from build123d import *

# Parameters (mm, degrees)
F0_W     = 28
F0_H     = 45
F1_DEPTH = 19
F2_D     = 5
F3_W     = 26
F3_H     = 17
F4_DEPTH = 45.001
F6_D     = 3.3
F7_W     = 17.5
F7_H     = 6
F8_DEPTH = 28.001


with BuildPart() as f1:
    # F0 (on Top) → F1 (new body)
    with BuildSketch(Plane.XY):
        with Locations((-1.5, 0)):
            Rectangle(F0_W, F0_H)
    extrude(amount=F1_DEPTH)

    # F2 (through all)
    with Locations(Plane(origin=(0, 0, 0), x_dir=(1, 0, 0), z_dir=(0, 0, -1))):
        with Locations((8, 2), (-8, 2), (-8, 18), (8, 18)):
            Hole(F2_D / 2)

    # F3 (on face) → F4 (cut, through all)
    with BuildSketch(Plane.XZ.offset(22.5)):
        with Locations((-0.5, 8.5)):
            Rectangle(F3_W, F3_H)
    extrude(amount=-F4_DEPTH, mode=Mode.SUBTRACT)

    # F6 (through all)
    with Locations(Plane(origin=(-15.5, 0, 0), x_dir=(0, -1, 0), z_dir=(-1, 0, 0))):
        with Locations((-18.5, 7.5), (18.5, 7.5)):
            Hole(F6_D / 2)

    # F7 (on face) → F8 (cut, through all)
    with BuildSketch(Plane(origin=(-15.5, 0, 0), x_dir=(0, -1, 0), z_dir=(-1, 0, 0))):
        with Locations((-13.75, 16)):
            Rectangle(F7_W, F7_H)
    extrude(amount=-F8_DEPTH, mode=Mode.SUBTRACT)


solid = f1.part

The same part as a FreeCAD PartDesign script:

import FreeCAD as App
import Part
import Sketcher
Q = App.Units.Quantity

doc = App.newDocument("Part")
body = doc.addObject("PartDesign::Body", "Body")

# Sketch on XY plane
sketch1 = body.newObject("Sketcher::SketchObject", "Sketch")
sketch1.AttachmentSupport = (doc.getObject("XY_Plane"), [""])
sketch1.MapMode = "FlatFace"
sketch1.addGeometry(Part.LineSegment(App.Vector(-16, 22, 0), App.Vector(-16, -22, 0)), False)
sketch1.addGeometry(Part.LineSegment(App.Vector(-16, -22, 0), App.Vector(12, -22, 0)), False)
sketch1.addGeometry(Part.LineSegment(App.Vector(12, -22, 0), App.Vector(12, 22, 0)), False)
sketch1.addGeometry(Part.LineSegment(App.Vector(12, 22, 0), App.Vector(-16, 22, 0)), False)
sketch1.addConstraint(Sketcher.Constraint("Coincident", 0, 2, 1, 1))
sketch1.addConstraint(Sketcher.Constraint("Coincident", 1, 2, 2, 1))
sketch1.addConstraint(Sketcher.Constraint("Coincident", 2, 2, 3, 1))
sketch1.addConstraint(Sketcher.Constraint("Coincident", 3, 2, 0, 1))
sketch1.addConstraint(Sketcher.Constraint("Vertical", 0))
sketch1.addConstraint(Sketcher.Constraint("Horizontal", 1))
sketch1.addConstraint(Sketcher.Constraint("Vertical", 2))
sketch1.addConstraint(Sketcher.Constraint("Horizontal", 3))
sketch1.addConstraint(Sketcher.Constraint("DistanceX", 1, 1, 1, 2, Q("28 mm")))
sketch1.addConstraint(Sketcher.Constraint("DistanceY", 0, 2, 0, 1, Q("45 mm")))
sketch1.addConstraint(Sketcher.Constraint("DistanceX", 0, 2, -1, 1, Q("15.5 mm")))
sketch1.addConstraint(Sketcher.Constraint("DistanceY", 0, 2, -1, 1, Q("22.5 mm")))
pad1 = body.newObject("PartDesign::Pad", "Pad")
pad1.Profile = sketch1
pad1.Length = 19

# Sketch on XY plane
sketch2 = body.newObject("Sketcher::SketchObject", "Sketch001")
sketch2.AttachmentSupport = (doc.getObject("XY_Plane"), [""])
sketch2.MapMode = "FlatFace"
sketch2.addGeometry(Part.Circle(App.Vector(8, -2, 0), App.Vector(0, 0, 1), 2.5), False)
sketch2.addGeometry(Part.Circle(App.Vector(-8, -2, 0), App.Vector(0, 0, 1), 2.5), False)
sketch2.addGeometry(Part.Circle(App.Vector(-8, -18, 0), App.Vector(0, 0, 1), 2.5), False)
sketch2.addGeometry(Part.Circle(App.Vector(8, -18, 0), App.Vector(0, 0, 1), 2.5), False)
sketch2.addConstraint(Sketcher.Constraint("Equal", 0, 1))
sketch2.addConstraint(Sketcher.Constraint("Equal", 1, 2))
sketch2.addConstraint(Sketcher.Constraint("Equal", 2, 3))
sketch2.addConstraint(Sketcher.Constraint("Symmetric", 0, 3, 1, 3, -2))
sketch2.addConstraint(Sketcher.Constraint("Symmetric", 2, 3, 3, 3, -2))
sketch2.addConstraint(Sketcher.Constraint("Vertical", 1, 3, 2, 3))
sketch2.addConstraint(Sketcher.Constraint("Diameter", 0, Q("5 mm")))
sketch2.addConstraint(Sketcher.Constraint("DistanceX", -1, 1, 0, 3, Q("8 mm")))
sketch2.addConstraint(Sketcher.Constraint("DistanceY", 0, 3, -1, 1, Q("2 mm")))
sketch2.addConstraint(Sketcher.Constraint("DistanceY", 2, 3, -1, 1, Q("18 mm")))
doc.recompute()
hole = body.newObject("PartDesign::Hole", "Hole")
hole.Profile = sketch2
hole.ThreadType = "None"
hole.Diameter = 5
hole.DepthType = "ThroughAll"
hole.Reversed = True

# Sketch on XZ plane
sketch3 = body.newObject("Sketcher::SketchObject", "Sketch002")
sketch3.AttachmentSupport = (doc.getObject("XZ_Plane"), [""])
sketch3.MapMode = "FlatFace"
sketch3.AttachmentOffset = App.Placement(App.Vector(0, 0, 22.5), App.Rotation())
sketch3.addGeometry(Part.LineSegment(App.Vector(-14, 17, 0), App.Vector(-14, 0, 0)), False)
sketch3.addGeometry(Part.LineSegment(App.Vector(-14, 0, 0), App.Vector(12, 0, 0)), False)
sketch3.addGeometry(Part.LineSegment(App.Vector(12, 0, 0), App.Vector(12, 17, 0)), False)
sketch3.addGeometry(Part.LineSegment(App.Vector(12, 17, 0), App.Vector(-14, 17, 0)), False)
sketch3.addConstraint(Sketcher.Constraint("Coincident", 0, 2, 1, 1))
sketch3.addConstraint(Sketcher.Constraint("Coincident", 1, 2, 2, 1))
sketch3.addConstraint(Sketcher.Constraint("Coincident", 2, 2, 3, 1))
sketch3.addConstraint(Sketcher.Constraint("Coincident", 3, 2, 0, 1))
sketch3.addConstraint(Sketcher.Constraint("Vertical", 0))
sketch3.addConstraint(Sketcher.Constraint("Horizontal", 1))
sketch3.addConstraint(Sketcher.Constraint("Vertical", 2))
sketch3.addConstraint(Sketcher.Constraint("Horizontal", 3))
sketch3.addConstraint(Sketcher.Constraint("PointOnObject", 0, 2, -1))
sketch3.addConstraint(Sketcher.Constraint("DistanceX", 1, 1, 1, 2, Q("26 mm")))
sketch3.addConstraint(Sketcher.Constraint("DistanceY", 0, 2, 0, 1, Q("17 mm")))
sketch3.addConstraint(Sketcher.Constraint("DistanceX", 0, 2, -1, 1, Q("13.5 mm")))
pocket1 = body.newObject("PartDesign::Pocket", "Pocket")
pocket1.Profile = sketch3
pocket1.Type = "ThroughAll"

# Sketch on YZ plane
sketch4 = body.newObject("Sketcher::SketchObject", "Sketch003")
sketch4.AttachmentSupport = (doc.getObject("YZ_Plane"), [""])
sketch4.MapMode = "FlatFace"
sketch4.AttachmentOffset = App.Placement(App.Vector(0, 0, -15.5), App.Rotation())
sketch4.addGeometry(Part.Circle(App.Vector(18.5, 7.5, 0), App.Vector(0, 0, 1), 1.6), False)
sketch4.addGeometry(Part.Circle(App.Vector(-18.5, 7.5, 0), App.Vector(0, 0, 1), 1.6), False)
sketch4.addConstraint(Sketcher.Constraint("Equal", 0, 1))
sketch4.addConstraint(Sketcher.Constraint("Symmetric", 0, 3, 1, 3, -2))
sketch4.addConstraint(Sketcher.Constraint("Diameter", 0, Q("3.3 mm")))
sketch4.addConstraint(Sketcher.Constraint("DistanceX", 1, 3, 0, 3, Q("37 mm")))
sketch4.addConstraint(Sketcher.Constraint("DistanceY", -1, 1, 0, 3, Q("7.5 mm")))
doc.recompute()
hole2 = body.newObject("PartDesign::Hole", "Hole001")
hole2.Profile = sketch4
hole2.ThreadType = "None"
hole2.Diameter = 3.3
hole2.DepthType = "ThroughAll"
hole2.Reversed = True

# Sketch on YZ plane
sketch5 = body.newObject("Sketcher::SketchObject", "Sketch004")
sketch5.AttachmentSupport = (doc.getObject("YZ_Plane"), [""])
sketch5.MapMode = "FlatFace"
sketch5.AttachmentOffset = App.Placement(App.Vector(0, 0, -15.5), App.Rotation())
sketch5.addGeometry(Part.LineSegment(App.Vector(22, 19, 0), App.Vector(22, 13, 0)), False)
sketch5.addGeometry(Part.LineSegment(App.Vector(22, 13, 0), App.Vector(5, 13, 0)), False)
sketch5.addGeometry(Part.LineSegment(App.Vector(5, 13, 0), App.Vector(5, 19, 0)), False)
sketch5.addGeometry(Part.LineSegment(App.Vector(5, 19, 0), App.Vector(22, 19, 0)), False)
sketch5.addConstraint(Sketcher.Constraint("Coincident", 0, 2, 1, 1))
sketch5.addConstraint(Sketcher.Constraint("Coincident", 1, 2, 2, 1))
sketch5.addConstraint(Sketcher.Constraint("Coincident", 2, 2, 3, 1))
sketch5.addConstraint(Sketcher.Constraint("Coincident", 3, 2, 0, 1))
sketch5.addConstraint(Sketcher.Constraint("Vertical", 0))
sketch5.addConstraint(Sketcher.Constraint("Horizontal", 1))
sketch5.addConstraint(Sketcher.Constraint("Vertical", 2))
sketch5.addConstraint(Sketcher.Constraint("Horizontal", 3))
sketch5.addConstraint(Sketcher.Constraint("DistanceY", 0, 2, 0, 1, Q("6 mm")))
sketch5.addConstraint(Sketcher.Constraint("DistanceX", 1, 2, 1, 1, Q("17.5 mm")))
sketch5.addConstraint(Sketcher.Constraint("DistanceY", -1, 1, 0, 2, Q("13 mm")))
sketch5.addConstraint(Sketcher.Constraint("DistanceX", -1, 1, 1, 2, Q("5 mm")))
pocket2 = body.newObject("PartDesign::Pocket", "Pocket001")
pocket2.Profile = sketch5
pocket2.Type = "ThroughAll"
pocket2.Reversed = True

doc.recompute()
